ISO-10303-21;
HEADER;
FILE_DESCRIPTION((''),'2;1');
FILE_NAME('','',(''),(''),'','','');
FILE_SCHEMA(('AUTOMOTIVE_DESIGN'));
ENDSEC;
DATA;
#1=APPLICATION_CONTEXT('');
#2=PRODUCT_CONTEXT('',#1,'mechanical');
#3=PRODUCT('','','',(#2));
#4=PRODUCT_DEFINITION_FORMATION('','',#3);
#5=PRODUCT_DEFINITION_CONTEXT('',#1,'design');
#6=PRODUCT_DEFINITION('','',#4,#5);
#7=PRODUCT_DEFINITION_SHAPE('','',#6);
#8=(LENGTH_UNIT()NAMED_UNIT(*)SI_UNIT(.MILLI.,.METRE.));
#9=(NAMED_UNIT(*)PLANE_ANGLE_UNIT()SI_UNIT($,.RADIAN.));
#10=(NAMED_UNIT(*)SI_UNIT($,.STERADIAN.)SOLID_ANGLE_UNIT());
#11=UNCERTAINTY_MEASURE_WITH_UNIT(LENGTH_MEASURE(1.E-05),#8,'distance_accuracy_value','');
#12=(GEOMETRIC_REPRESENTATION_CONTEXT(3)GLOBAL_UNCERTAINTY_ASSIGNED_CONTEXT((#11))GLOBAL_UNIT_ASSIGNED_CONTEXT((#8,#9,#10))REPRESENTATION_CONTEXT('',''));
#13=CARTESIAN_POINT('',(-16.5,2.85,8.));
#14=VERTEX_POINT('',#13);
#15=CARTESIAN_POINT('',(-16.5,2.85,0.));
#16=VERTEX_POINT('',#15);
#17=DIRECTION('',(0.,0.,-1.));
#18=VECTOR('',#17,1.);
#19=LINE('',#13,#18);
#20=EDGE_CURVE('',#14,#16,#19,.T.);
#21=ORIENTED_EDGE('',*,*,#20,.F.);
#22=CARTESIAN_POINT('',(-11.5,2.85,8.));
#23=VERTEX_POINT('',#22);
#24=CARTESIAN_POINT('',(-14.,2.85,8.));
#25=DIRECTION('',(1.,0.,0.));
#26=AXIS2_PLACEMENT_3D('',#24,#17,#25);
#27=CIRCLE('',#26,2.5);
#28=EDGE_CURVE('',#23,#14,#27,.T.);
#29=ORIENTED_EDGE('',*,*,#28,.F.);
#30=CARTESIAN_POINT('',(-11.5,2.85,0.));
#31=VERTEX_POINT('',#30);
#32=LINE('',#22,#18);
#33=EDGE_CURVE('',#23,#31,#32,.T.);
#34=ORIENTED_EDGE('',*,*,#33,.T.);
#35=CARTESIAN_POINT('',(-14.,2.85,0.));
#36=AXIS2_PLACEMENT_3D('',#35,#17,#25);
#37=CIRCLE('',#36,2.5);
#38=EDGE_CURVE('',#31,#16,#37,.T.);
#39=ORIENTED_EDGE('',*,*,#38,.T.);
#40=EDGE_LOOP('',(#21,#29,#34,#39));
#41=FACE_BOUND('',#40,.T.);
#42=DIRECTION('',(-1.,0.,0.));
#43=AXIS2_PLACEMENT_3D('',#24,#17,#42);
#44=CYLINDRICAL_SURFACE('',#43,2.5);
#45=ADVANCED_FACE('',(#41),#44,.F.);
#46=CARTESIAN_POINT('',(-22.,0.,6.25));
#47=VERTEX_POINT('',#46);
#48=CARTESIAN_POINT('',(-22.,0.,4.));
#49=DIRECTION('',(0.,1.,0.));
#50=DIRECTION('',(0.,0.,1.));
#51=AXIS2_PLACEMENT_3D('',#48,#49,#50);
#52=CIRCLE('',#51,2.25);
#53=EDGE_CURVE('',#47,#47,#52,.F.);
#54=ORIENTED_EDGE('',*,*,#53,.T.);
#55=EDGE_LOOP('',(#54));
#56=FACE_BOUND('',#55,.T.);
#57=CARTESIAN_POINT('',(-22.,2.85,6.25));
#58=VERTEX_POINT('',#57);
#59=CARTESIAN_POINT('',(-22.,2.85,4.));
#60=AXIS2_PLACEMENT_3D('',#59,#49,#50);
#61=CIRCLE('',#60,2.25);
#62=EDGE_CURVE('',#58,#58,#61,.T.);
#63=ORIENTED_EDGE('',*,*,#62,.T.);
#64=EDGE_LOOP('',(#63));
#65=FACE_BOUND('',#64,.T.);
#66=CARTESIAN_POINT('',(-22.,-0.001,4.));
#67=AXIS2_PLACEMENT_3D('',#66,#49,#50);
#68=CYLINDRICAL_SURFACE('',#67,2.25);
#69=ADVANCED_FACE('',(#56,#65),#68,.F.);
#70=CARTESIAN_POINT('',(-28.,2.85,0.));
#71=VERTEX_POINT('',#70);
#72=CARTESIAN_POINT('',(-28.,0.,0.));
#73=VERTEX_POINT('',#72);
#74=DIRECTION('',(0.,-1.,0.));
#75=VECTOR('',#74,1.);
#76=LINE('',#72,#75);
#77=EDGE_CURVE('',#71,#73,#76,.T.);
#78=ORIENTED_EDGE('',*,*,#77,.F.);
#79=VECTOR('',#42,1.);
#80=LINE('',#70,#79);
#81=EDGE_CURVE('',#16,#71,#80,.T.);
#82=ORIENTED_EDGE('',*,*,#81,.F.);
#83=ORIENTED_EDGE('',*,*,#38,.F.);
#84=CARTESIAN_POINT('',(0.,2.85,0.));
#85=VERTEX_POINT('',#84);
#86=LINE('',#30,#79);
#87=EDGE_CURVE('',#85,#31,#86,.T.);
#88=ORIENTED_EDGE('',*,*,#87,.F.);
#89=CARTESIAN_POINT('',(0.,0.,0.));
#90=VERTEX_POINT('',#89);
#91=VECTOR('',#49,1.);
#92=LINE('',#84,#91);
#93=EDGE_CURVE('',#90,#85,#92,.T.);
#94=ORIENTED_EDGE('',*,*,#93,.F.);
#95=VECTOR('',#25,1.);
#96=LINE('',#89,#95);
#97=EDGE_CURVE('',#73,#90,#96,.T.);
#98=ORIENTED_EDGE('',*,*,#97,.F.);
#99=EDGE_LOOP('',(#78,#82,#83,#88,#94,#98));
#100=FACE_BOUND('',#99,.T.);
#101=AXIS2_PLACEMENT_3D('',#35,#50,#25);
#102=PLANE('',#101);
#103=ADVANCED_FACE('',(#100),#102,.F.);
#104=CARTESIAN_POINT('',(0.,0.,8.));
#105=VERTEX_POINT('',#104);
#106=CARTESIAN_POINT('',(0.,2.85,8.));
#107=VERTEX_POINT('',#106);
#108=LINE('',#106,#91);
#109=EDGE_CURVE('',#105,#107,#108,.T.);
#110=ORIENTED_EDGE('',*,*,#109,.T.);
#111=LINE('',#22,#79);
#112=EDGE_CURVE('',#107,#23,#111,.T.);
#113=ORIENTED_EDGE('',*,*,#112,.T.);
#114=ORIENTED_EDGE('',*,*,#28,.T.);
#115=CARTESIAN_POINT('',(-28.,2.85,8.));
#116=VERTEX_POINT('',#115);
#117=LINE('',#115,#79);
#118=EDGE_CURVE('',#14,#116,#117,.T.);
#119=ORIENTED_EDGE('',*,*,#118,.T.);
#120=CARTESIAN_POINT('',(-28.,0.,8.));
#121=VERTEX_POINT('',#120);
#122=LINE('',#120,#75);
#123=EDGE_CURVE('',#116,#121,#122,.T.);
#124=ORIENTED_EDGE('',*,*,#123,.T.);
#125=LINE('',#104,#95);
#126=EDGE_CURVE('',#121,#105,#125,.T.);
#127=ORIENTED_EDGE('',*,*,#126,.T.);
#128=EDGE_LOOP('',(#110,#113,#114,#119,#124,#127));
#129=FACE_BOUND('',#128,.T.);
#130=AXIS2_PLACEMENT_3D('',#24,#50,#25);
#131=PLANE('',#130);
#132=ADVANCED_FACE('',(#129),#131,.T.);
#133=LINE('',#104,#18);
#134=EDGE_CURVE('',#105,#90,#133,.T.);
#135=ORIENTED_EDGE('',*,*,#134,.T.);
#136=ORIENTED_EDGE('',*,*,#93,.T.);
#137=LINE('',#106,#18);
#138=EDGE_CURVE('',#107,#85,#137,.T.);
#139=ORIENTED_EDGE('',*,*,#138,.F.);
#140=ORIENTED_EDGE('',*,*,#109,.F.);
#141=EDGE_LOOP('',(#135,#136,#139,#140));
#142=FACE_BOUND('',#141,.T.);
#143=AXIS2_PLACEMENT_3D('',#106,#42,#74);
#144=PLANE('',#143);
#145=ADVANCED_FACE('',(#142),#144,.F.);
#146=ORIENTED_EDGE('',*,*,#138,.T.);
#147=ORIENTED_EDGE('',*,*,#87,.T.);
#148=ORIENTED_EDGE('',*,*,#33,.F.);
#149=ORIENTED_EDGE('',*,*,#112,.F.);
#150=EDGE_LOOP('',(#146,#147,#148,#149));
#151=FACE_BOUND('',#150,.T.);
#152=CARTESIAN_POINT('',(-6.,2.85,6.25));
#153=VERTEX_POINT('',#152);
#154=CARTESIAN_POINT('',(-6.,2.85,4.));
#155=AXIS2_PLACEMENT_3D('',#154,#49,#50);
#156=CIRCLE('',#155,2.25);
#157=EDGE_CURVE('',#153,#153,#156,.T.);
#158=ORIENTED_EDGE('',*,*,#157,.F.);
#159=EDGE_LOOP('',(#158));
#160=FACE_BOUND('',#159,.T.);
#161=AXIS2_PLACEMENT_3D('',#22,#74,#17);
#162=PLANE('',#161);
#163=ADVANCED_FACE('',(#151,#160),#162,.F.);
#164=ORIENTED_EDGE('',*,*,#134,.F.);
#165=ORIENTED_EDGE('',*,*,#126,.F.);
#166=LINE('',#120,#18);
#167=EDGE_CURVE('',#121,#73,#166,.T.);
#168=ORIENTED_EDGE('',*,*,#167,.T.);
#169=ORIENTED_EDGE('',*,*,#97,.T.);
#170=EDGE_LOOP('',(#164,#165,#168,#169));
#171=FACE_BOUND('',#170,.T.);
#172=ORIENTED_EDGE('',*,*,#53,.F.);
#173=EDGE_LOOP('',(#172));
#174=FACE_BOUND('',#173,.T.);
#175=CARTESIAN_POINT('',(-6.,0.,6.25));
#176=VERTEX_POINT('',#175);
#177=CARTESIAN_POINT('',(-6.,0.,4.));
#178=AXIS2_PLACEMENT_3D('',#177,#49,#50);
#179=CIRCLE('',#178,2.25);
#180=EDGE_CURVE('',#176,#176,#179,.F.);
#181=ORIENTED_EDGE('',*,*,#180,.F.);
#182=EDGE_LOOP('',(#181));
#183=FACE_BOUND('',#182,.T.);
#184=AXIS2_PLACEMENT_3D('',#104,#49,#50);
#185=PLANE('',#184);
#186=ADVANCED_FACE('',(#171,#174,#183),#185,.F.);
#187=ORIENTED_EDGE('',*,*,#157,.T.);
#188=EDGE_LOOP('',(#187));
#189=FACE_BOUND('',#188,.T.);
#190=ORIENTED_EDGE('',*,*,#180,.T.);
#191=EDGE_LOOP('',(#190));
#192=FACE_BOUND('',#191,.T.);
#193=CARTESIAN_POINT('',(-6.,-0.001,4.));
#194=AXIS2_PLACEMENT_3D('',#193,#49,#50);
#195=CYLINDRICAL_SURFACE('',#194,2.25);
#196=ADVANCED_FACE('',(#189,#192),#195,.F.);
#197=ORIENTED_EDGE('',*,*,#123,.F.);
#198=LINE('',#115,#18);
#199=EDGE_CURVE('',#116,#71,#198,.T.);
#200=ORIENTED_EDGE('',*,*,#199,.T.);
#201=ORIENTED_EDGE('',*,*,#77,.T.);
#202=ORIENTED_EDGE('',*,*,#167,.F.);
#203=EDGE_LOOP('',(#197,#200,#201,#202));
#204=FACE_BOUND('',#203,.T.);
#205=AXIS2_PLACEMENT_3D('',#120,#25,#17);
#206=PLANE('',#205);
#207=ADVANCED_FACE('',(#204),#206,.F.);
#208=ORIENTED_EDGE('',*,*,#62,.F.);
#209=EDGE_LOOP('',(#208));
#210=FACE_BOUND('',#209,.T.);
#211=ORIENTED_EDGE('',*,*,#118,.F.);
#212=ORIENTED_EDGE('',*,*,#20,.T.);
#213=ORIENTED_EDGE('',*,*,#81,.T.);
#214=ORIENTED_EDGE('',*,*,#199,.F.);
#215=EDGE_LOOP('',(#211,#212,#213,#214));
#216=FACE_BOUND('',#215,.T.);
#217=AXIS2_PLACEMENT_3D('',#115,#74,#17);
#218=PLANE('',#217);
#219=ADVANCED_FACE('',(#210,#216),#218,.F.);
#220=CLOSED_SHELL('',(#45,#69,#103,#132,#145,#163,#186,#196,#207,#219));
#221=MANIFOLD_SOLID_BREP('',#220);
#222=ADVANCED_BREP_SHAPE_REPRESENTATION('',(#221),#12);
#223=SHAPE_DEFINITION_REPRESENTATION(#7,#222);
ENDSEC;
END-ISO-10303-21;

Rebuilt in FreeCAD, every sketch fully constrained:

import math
import FreeCAD as App
import Part
import Sketcher
Q = App.Units.Quantity

doc = App.newDocument("Part")
body = doc.addObject("PartDesign::Body", "Body")

# Sketch on XY plane
sketch1 = body.newObject("Sketcher::SketchObject", "Sketch")
sketch1.AttachmentSupport = (doc.getObject("XY_Plane"), [""])
sketch1.MapMode = "FlatFace"
sketch1.addGeometry(Part.LineSegment(App.Vector(-28, 0, 0), App.Vector(0, 0, 0)), False)
sketch1.addGeometry(Part.LineSegment(App.Vector(0, 0, 0), App.Vector(0, 2.9, 0)), False)
sketch1.addGeometry(Part.LineSegment(App.Vector(0, 2.9, 0), App.Vector(-11.5, 2.9, 0)), False)
sketch1.addGeometry(Part.ArcOfCircle(Part.Circle(App.Vector(-14, 2.9, 0), App.Vector(0, 0, 1), 2.5), math.radians(180), math.radians(360)), False)
sketch1.addGeometry(Part.LineSegment(App.Vector(-16.5, 2.9, 0), App.Vector(-28, 2.9, 0)), False)
sketch1.addGeometry(Part.LineSegment(App.Vector(-28, 2.9, 0), App.Vector(-28, 0, 0)), False)
sketch1.addConstraint(Sketcher.Constraint("Coincident", 0, 2, 1, 1))
sketch1.addConstraint(Sketcher.Constraint("Coincident", 1, 2, 2, 1))
sketch1.addConstraint(Sketcher.Constraint("Coincident", 2, 2, 3, 2))
sketch1.addConstraint(Sketcher.Constraint("Coincident", 3, 1, 4, 1))
sketch1.addConstraint(Sketcher.Constraint("Coincident", 4, 2, 5, 1))
sketch1.addConstraint(Sketcher.Constraint("Coincident", 5, 2, 0, 1))
sketch1.addConstraint(Sketcher.Constraint("Horizontal", 0))
sketch1.addConstraint(Sketcher.Constraint("Vertical", 1))
sketch1.addConstraint(Sketcher.Constraint("Horizontal", 2))
sketch1.addConstraint(Sketcher.Constraint("Horizontal", 4))
sketch1.addConstraint(Sketcher.Constraint("Vertical", 5))
sketch1.addConstraint(Sketcher.Constraint("Coincident", 0, 2, -1, 1))
sketch1.addConstraint(Sketcher.Constraint("Horizontal", 3, 3, 1, 2))
sketch1.addConstraint(Sketcher.Constraint("Horizontal", 2, 2, 3, 1))
sketch1.addConstraint(Sketcher.Constraint("Equal", 2, 4))
sketch1.addConstraint(Sketcher.Constraint("Radius", 3, Q("2.5 mm")))
sketch1.addConstraint(Sketcher.Constraint("DistanceX", 0, 1, 0, 2, Q("28 mm")))
sketch1.addConstraint(Sketcher.Constraint("DistanceY", 1, 1, 1, 2, Q("2.85 mm")))
pad1 = body.newObject("PartDesign::Pad", "Pad")
pad1.Profile = sketch1
pad1.Length = 8

# Sketch on XZ plane
sketch2 = body.newObject("Sketcher::SketchObject", "Sketch001")
sketch2.AttachmentSupport = (doc.getObject("XZ_Plane"), [""])
sketch2.MapMode = "FlatFace"
sketch2.AttachmentOffset = App.Placement(App.Vector(0, 0, -2.85), App.Rotation())
sketch2.addGeometry(Part.Circle(App.Vector(-22, 4, 0), App.Vector(0, 0, 1), 2.2), False)
sketch2.addConstraint(Sketcher.Constraint("Diameter", 0, Q("4.5 mm")))
sketch2.addConstraint(Sketcher.Constraint("DistanceX", 0, 3, -1, 1, Q("22 mm")))
sketch2.addConstraint(Sketcher.Constraint("DistanceY", -1, 1, 0, 3, Q("4 mm")))
pocket1 = body.newObject("PartDesign::Pocket", "Pocket")
pocket1.Profile = sketch2
pocket1.Type = "UpToFirst"
pocket1.Reversed = True

# Sketch on XZ plane
sketch3 = body.newObject("Sketcher::SketchObject", "Sketch002")
sketch3.AttachmentSupport = (doc.getObject("XZ_Plane"), [""])
sketch3.MapMode = "FlatFace"
sketch3.AttachmentOffset = App.Placement(App.Vector(0, 0, -2.85), App.Rotation())
sketch3.addGeometry(Part.Circle(App.Vector(-6, 4, 0), App.Vector(0, 0, 1), 2.2), False)
sketch3.addConstraint(Sketcher.Constraint("Diameter", 0, Q("4.5 mm")))
sketch3.addConstraint(Sketcher.Constraint("DistanceX", 0, 3, -1, 1, Q("6 mm")))
sketch3.addConstraint(Sketcher.Constraint("DistanceY", -1, 1, 0, 3, Q("4 mm")))
pocket2 = body.newObject("PartDesign::Pocket", "Pocket001")
pocket2.Profile = sketch3
pocket2.Type = "UpToFirst"
pocket2.Reversed = True

doc.recompute()
